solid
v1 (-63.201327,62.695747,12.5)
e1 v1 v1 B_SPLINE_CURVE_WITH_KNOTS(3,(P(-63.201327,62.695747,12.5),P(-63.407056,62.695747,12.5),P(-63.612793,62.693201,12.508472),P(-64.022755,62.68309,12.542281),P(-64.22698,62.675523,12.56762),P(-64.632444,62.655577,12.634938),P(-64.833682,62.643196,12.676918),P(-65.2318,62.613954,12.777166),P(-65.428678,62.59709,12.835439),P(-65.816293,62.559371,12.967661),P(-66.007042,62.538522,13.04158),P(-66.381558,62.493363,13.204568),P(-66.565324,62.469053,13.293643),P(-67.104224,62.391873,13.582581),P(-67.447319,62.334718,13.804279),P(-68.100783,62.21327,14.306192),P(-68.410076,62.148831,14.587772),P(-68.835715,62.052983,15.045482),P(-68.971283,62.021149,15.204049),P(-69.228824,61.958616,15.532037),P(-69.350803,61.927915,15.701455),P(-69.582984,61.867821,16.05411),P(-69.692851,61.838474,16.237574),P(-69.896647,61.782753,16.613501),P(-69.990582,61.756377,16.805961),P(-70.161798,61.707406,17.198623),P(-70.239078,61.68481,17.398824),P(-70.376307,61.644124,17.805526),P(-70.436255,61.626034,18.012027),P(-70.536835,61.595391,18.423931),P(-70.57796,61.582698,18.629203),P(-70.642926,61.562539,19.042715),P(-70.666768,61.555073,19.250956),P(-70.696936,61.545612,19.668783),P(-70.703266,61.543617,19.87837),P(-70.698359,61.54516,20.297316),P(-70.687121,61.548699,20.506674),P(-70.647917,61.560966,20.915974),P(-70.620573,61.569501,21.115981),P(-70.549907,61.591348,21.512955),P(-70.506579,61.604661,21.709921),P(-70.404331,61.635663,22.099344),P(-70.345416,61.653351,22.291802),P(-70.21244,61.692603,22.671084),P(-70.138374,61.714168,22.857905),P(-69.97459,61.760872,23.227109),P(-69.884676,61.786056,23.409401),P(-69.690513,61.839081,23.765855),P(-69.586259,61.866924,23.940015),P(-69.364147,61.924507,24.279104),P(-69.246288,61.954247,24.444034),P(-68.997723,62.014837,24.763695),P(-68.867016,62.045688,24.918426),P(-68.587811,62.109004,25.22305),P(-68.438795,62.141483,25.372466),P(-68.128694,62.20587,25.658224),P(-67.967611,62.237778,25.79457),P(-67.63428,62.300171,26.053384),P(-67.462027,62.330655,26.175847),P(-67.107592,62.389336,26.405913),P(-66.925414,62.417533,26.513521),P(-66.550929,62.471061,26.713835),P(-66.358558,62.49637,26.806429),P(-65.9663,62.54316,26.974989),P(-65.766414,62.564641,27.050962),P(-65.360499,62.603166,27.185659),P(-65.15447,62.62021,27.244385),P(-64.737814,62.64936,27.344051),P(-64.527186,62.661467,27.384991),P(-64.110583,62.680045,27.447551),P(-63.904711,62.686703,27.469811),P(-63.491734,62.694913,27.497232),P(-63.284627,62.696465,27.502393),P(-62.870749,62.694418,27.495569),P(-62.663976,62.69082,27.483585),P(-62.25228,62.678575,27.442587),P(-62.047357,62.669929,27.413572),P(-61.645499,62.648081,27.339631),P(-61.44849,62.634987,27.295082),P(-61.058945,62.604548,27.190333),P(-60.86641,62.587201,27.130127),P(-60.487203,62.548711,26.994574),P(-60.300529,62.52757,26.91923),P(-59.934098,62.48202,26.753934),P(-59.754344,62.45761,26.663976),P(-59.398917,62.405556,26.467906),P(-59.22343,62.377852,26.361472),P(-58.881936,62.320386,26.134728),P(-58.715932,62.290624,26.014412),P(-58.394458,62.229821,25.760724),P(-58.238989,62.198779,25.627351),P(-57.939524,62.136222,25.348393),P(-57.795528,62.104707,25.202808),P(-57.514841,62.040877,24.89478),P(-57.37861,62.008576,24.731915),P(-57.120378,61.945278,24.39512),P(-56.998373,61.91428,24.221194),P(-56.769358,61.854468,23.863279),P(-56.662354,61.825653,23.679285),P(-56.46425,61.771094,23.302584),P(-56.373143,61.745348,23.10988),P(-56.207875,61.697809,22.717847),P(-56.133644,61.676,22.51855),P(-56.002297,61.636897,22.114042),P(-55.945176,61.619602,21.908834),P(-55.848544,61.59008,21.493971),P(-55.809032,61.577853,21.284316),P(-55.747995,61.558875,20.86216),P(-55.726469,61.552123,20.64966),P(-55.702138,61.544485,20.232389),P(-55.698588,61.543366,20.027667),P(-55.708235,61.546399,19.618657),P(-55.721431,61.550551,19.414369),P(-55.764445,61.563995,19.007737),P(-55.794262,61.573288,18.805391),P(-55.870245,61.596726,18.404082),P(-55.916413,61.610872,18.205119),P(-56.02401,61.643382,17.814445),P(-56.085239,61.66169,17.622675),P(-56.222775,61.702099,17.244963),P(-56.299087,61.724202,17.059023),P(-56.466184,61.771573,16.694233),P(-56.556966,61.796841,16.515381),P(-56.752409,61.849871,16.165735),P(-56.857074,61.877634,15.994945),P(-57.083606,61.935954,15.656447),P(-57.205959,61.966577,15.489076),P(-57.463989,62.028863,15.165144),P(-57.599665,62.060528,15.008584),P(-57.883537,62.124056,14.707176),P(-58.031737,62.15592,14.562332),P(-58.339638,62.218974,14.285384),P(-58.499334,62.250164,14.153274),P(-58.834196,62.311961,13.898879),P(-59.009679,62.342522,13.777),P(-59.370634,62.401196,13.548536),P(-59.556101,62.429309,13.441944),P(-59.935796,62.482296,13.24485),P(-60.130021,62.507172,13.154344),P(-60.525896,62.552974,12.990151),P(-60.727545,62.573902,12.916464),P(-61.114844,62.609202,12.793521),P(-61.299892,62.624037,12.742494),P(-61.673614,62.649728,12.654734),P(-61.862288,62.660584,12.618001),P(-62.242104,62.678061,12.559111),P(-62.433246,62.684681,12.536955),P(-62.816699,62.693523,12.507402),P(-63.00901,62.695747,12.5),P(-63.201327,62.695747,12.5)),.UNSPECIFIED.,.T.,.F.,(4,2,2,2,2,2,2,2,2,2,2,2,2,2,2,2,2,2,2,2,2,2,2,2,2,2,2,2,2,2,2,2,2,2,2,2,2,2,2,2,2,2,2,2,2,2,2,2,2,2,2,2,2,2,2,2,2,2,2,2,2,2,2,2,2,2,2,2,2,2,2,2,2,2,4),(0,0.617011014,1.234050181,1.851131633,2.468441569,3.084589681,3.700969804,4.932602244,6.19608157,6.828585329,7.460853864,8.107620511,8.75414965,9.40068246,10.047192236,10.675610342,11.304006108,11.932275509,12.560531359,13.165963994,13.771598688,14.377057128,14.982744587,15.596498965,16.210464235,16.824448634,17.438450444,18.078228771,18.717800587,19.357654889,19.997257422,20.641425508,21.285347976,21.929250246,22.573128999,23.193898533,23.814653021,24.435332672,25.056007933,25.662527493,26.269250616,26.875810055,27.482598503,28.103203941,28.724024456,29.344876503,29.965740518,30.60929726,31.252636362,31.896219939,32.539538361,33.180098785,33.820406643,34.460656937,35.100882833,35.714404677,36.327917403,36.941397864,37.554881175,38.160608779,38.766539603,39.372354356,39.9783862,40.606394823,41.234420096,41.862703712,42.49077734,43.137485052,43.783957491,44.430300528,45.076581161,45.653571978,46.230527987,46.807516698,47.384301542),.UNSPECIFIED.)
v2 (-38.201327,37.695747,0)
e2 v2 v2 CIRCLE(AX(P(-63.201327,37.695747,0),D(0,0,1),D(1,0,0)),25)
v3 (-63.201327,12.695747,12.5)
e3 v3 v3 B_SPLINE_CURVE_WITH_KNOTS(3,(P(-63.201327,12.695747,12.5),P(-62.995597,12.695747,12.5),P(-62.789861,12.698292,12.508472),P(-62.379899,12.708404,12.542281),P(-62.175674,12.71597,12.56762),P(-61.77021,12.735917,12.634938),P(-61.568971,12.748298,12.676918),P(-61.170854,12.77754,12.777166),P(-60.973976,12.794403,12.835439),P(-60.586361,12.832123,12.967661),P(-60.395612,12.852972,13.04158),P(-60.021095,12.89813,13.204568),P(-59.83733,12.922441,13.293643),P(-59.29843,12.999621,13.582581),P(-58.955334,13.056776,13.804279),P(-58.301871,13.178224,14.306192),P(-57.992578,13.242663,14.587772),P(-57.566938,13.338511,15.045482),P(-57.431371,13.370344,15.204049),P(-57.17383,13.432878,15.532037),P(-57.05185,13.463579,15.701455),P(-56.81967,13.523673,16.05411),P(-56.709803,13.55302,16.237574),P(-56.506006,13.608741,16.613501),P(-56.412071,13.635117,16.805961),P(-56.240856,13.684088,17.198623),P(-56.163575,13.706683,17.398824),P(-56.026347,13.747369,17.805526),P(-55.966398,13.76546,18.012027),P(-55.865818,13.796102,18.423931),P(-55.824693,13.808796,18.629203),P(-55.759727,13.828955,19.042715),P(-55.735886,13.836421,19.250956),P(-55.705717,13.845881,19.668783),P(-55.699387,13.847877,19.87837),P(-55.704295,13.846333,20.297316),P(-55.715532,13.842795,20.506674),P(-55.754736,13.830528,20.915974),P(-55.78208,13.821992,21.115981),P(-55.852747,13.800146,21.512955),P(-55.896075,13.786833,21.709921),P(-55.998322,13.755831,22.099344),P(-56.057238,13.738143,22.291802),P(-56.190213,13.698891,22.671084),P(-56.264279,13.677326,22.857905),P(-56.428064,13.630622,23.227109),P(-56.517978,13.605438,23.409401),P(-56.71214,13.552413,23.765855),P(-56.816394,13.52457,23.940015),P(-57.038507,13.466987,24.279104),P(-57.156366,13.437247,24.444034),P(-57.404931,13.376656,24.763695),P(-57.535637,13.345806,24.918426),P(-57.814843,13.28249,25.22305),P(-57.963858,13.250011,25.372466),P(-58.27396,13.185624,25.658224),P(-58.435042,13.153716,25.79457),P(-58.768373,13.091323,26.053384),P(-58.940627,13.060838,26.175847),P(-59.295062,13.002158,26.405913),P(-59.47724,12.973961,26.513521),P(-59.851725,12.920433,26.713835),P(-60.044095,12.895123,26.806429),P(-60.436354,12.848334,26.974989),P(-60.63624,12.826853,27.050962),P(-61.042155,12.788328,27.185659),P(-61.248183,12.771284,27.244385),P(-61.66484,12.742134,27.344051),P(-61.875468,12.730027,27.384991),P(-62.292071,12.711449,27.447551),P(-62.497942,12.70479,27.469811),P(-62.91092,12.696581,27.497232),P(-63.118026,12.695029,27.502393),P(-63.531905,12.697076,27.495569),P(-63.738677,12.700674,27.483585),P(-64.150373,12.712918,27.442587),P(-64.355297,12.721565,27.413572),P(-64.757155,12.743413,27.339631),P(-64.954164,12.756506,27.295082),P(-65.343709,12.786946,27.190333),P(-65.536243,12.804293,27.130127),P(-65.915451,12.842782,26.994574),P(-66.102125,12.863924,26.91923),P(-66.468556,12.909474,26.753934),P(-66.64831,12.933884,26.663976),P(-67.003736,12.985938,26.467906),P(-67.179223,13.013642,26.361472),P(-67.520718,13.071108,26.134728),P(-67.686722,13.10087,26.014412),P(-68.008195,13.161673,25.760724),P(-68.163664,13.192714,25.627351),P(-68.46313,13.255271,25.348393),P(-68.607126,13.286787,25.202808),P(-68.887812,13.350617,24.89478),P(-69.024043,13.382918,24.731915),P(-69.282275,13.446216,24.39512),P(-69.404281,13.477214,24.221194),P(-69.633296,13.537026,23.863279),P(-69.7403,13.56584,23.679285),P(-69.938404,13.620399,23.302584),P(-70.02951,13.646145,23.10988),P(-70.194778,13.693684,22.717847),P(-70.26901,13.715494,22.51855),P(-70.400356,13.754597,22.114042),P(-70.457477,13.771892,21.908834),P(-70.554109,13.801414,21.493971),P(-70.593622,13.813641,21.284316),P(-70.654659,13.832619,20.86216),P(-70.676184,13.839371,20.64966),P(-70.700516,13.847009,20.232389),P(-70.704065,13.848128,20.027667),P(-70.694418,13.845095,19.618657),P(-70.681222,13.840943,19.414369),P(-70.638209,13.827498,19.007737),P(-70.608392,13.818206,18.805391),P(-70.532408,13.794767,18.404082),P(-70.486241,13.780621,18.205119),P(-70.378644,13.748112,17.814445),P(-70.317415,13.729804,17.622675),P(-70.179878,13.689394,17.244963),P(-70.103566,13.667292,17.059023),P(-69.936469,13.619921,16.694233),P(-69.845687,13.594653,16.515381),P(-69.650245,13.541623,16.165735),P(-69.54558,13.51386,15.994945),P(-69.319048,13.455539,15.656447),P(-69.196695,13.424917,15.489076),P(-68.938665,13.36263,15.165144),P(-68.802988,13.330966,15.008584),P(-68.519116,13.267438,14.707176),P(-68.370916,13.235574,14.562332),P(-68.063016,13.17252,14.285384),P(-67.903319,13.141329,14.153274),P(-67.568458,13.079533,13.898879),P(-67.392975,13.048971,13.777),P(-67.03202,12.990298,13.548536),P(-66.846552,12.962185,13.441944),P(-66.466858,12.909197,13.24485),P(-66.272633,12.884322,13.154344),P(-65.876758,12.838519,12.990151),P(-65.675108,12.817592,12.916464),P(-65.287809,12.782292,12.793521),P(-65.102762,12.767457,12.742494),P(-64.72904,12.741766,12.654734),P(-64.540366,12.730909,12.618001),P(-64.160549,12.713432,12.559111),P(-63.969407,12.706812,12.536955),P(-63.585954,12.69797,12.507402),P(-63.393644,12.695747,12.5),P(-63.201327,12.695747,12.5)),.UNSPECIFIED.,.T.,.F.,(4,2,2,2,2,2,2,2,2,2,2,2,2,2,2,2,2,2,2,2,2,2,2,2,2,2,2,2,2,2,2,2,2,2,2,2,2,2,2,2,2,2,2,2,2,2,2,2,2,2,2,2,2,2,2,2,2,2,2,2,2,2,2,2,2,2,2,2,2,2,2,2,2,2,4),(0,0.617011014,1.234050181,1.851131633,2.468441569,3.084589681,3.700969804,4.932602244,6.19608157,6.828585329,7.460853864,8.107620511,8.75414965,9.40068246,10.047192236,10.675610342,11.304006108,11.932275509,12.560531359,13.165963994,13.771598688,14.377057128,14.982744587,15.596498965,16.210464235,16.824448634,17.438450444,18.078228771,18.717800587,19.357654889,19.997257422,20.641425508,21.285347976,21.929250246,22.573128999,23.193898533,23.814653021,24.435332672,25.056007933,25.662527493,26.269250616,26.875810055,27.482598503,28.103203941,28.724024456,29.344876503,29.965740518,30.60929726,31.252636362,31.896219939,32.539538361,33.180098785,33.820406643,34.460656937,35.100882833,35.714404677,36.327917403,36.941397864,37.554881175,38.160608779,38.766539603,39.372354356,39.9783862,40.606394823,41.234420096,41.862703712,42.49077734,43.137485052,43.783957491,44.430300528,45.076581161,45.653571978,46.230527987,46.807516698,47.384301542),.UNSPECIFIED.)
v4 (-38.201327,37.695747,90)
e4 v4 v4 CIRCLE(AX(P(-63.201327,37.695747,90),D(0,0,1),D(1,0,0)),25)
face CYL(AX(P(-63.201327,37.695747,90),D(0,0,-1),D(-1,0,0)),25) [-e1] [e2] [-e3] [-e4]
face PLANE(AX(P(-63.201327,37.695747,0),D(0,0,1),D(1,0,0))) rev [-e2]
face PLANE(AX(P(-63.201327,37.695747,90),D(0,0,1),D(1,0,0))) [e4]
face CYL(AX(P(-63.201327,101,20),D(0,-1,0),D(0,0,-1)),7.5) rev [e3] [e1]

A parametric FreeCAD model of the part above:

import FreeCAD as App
import Part
import Sketcher
Q = App.Units.Quantity

doc = App.newDocument("Part")
params = doc.addObject("Spreadsheet::Sheet", "Params")
for row, (alias, value) in enumerate([
    ("sketch1_diameter", "50 mm"),
    ("pad1_length", "90 mm"),
    ("sketch2_diameter", "15 mm"),
    ("pocket1_length", "101 mm"),
], start=1):
    params.set(f"A{row}", alias)
    params.set(f"B{row}", "=" + value)
    params.setAlias(f"B{row}", alias)

body = doc.addObject("PartDesign::Body", "Body")

# Sketch on XY plane
sketch1 = doc.addObject("Sketcher::SketchObject", "Sketch")
body.addObject(sketch1)
sketch1.AttachmentSupport = (doc.XY_Plane, [""])
sketch1.MapMode = "FlatFace"
sketch1.addGeometry(Part.Circle(App.Vector(-63, 38, 0), App.Vector(0, 0, 1), 25), False)
sketch1.addConstraint([
    Sketcher.Constraint("Diameter", 0, Q("50 mm")),
    Sketcher.Constraint("DistanceX", 0, 3, -1, 1, Q("63.201327 mm")),
    Sketcher.Constraint("DistanceY", -1, 1, 0, 3, Q("37.695747 mm")),
])
sketch1.setExpression("Constraints[0]", "Params.sketch1_diameter")
pad1 = doc.addObject("PartDesign::Pad", "Pad")
body.addObject(pad1)
pad1.Profile = sketch1
pad1.setExpression("Length", "Params.pad1_length")

# Sketch on XZ plane
sketch2 = doc.addObject("Sketcher::SketchObject", "Sketch001")
body.addObject(sketch2)
sketch2.AttachmentSupport = (doc.XZ_Plane, [""])
sketch2.MapMode = "FlatFace"
sketch2.addGeometry(Part.Circle(App.Vector(-63, 20, 0), App.Vector(0, 0, 1), 8), False)
sketch2.addConstraint([
    Sketcher.Constraint("Diameter", 0, Q("15 mm")),
    Sketcher.Constraint("DistanceY", -1, 1, 0, 3, Q("20 mm")),
    Sketcher.Constraint("DistanceX", 0, 3, -1, 1, Q("63.201327 mm")),
])
sketch2.setExpression("Constraints[0]", "Params.sketch2_diameter")
pocket1 = doc.addObject("PartDesign::Pocket", "Pocket")
body.addObject(pocket1)
pocket1.Profile = sketch2
pocket1.setExpression("Length", "Params.pocket1_length")

doc.recompute()
